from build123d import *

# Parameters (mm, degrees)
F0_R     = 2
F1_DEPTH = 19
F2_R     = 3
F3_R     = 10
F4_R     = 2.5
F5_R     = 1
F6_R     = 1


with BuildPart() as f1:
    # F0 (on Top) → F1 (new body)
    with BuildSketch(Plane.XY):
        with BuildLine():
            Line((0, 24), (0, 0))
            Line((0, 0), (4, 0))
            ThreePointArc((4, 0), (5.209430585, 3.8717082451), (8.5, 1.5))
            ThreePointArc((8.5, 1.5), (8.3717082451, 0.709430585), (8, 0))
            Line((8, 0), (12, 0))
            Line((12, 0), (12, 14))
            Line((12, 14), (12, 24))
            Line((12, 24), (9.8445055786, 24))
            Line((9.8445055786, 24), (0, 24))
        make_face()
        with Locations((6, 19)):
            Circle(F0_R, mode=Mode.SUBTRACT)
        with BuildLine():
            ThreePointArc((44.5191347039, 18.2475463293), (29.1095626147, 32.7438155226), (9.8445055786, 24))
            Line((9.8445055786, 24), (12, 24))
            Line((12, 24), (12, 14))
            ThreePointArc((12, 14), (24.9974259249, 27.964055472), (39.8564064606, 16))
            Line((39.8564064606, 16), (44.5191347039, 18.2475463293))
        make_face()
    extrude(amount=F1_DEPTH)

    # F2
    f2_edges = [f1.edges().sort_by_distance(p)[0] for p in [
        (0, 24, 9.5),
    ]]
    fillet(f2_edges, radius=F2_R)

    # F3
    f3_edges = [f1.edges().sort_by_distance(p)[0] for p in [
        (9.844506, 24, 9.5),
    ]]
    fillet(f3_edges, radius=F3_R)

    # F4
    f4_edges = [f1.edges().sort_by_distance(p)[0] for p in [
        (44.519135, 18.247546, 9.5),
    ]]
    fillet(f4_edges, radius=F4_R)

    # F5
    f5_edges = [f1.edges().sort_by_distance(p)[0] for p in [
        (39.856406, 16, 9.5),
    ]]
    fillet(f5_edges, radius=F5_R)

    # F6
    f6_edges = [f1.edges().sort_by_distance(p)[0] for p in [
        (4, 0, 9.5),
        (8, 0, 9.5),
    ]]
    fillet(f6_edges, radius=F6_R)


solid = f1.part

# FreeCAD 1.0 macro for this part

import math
import FreeCAD as App
import Part
import Sketcher

V = App.Vector
Q = App.Units.Quantity


def edges_at(feature, points):
    """Names of the edges that pass closest to the given points."""
    edges = feature.Shape.Edges
    near = lambda p: min(range(len(edges)), key=lambda i: edges[i].distToShape(Part.Vertex(*p))[0])
    return sorted({f"Edge{near(p) + 1}" for p in points})

doc = App.newDocument("Part")
params = doc.addObject("Spreadsheet::Sheet", "Params")
for row, (alias, value) in enumerate([
    ("sketch1_diameter", "4 mm"),
    ("sketch1_radius", "14 mm"),
    ("sketch1_radius2", "19 mm"),
    ("sketch1_radius3", "2.5 mm"),
    ("sketch1_width", "4 mm"),
    ("pad1_length", "19 mm"),
    ("fillet_radius", "3 mm"),
    ("fillet2_radius", "10 mm"),
    ("fillet3_radius", "2.5 mm"),
    ("fillet4_radius", "1 mm"),
    ("fillet5_radius", "1 mm"),
], start=1):
    params.set(f"A{row}", alias)
    params.set(f"B{row}", "=" + value)
    params.setAlias(f"B{row}", alias)

body = doc.addObject("PartDesign::Body", "Body")

sketch1 = body.newObject("Sketcher::SketchObject", "Sketch")
sketch1.AttachmentSupport = (doc.getObject("XY_Plane"), [""])
sketch1.MapMode = "FlatFace"
sketch1.addGeometry(Part.LineSegment(V(0, 24, 0), V(0, 0, 0)), False)
sketch1.addGeometry(Part.LineSegment(V(0, 0, 0), V(4, 0, 0)), False)
sketch1.addGeometry(Part.ArcOfCircle(Part.Circle(V(6, 1.5, 0), V(0, 0, 1), 2.5), math.radians(0), math.radians(217)), False)
sketch1.addGeometry(Part.ArcOfCircle(Part.Circle(V(6, 1.5, 0), V(0, 0, 1), 2.5), math.radians(-37), math.radians(0)), False)
sketch1.addGeometry(Part.LineSegment(V(8, 0, 0), V(12, 0, 0)), False)
sketch1.addGeometry(Part.LineSegment(V(12, 0, 0), V(12, 14, 0)), False)
sketch1.addGeometry(Part.ArcOfCircle(Part.Circle(V(26, 14, 0), V(0, 0, 1), 14), math.radians(8), math.radians(180)), False)
sketch1.addGeometry(Part.LineSegment(V(39.9, 16, 0), V(44.5, 18.2, 0)), False)
sketch1.addGeometry(Part.ArcOfCircle(Part.Circle(V(26, 14, 0), V(0, 0, 1), 19), math.radians(13), math.radians(148)), False)
sketch1.addGeometry(Part.LineSegment(V(9.8, 24, 0), V(0, 24, 0)), False)
sketch1.addGeometry(Part.Circle(V(6, 19, 0), V(0, 0, 1), 2), False)
sketch1.addConstraint(Sketcher.Constraint("Coincident", 0, 2, 1, 1))
sketch1.addConstraint(Sketcher.Constraint("Coincident", 1, 2, 2, 2))
sketch1.addConstraint(Sketcher.Constraint("Tangent", 2, 1, 3, 2))
sketch1.addConstraint(Sketcher.Constraint("Coincident", 3, 1, 4, 1))
sketch1.addConstraint(Sketcher.Constraint("Coincident", 4, 2, 5, 1))
sketch1.addConstraint(Sketcher.Constraint("Tangent", 5, 2, 6, 2))
sketch1.addConstraint(Sketcher.Constraint("Coincident", 6, 1, 7, 1))
sketch1.addConstraint(Sketcher.Constraint("Coincident", 7, 2, 8, 1))
sketch1.addConstraint(Sketcher.Constraint("Coincident", 8, 2, 9, 1))
sketch1.addConstraint(Sketcher.Constraint("Coincident", 9, 2, 0, 1))
sketch1.addConstraint(Sketcher.Constraint("Vertical", 0))
sketch1.addConstraint(Sketcher.Constraint("Horizontal", 1))
sketch1.addConstraint(Sketcher.Constraint("Horizontal", 4))
sketch1.addConstraint(Sketcher.Constraint("Vertical", 5))
sketch1.addConstraint(Sketcher.Constraint("Horizontal", 9))
sketch1.addConstraint(Sketcher.Constraint("Coincident", 0, 2, -1, 1))
sketch1.addConstraint(Sketcher.Constraint("Coincident", 8, 3, 6, 3))
sketch1.addConstraint(Sketcher.Constraint("Equal", 2, 3))
sketch1.addConstraint(Sketcher.Constraint("PointOnObject", 3, 1, -1))
sketch1.addConstraint(Sketcher.Constraint("Horizontal", 3, 3, 2, 1))
sketch1.addConstraint(Sketcher.Constraint("Vertical", 3, 3, 10, 3))
sketch1.addConstraint(Sketcher.Constraint("Equal", 1, 4))
sketch1.addConstraint(Sketcher.Constraint("Diameter", 10, Q("4 mm")))
sketch1.addConstraint(Sketcher.Constraint("Radius", 6, Q("14 mm")))
sketch1.addConstraint(Sketcher.Constraint("Radius", 8, Q("19 mm")))
sketch1.addConstraint(Sketcher.Constraint("Radius", 2, Q("2.5 mm")))
sketch1.addConstraint(Sketcher.Constraint("DistanceX", 1, 1, 1, 2, Q("4 mm")))
sketch1.addConstraint(Sketcher.Constraint("DistanceY", 0, 2, 0, 1, Q("24 mm")))
sketch1.addConstraint(Sketcher.Constraint("DistanceY", 5, 1, 5, 2, Q("14 mm")))
sketch1.addConstraint(Sketcher.Constraint("DistanceX", -1, 1, 2, 3, Q("6 mm")))
sketch1.addConstraint(Sketcher.Constraint("DistanceY", -1, 1, 10, 3, Q("19 mm")))
sketch1.addConstraint(Sketcher.Constraint("DistanceY", -1, 1, 6, 1, Q("16 mm")))
sketch1.addConstraint(Sketcher.Constraint("DistanceX", 6, 1, 7, 2, Q("4.662728 mm")))
sketch1.setExpression("Constraints[22]", "Params.sketch1_diameter")
sketch1.setExpression("Constraints[23]", "Params.sketch1_radius")
sketch1.setExpression("Constraints[24]", "Params.sketch1_radius2")
sketch1.setExpression("Constraints[25]", "Params.sketch1_radius3")
sketch1.setExpression("Constraints[26]", "Params.sketch1_width")
pad1 = body.newObject("PartDesign::Pad", "Pad")
pad1.Profile = sketch1
pad1.setExpression("Length", "Params.pad1_length")
doc.recompute()

fillet = body.newObject("PartDesign::Fillet", "Fillet")
fillet.Base = (pad1, edges_at(pad1, [(0, 24, 9.5)]))
fillet.setExpression("Radius", "Params.fillet_radius")
doc.recompute()

fillet2 = body.newObject("PartDesign::Fillet", "Fillet001")
fillet2.Base = (fillet, edges_at(fillet, [(9.845, 24, 9.5)]))
fillet2.setExpression("Radius", "Params.fillet2_radius")
doc.recompute()

fillet3 = body.newObject("PartDesign::Fillet", "Fillet002")
fillet3.Base = (fillet2, edges_at(fillet2, [(44.519, 18.248, 9.5)]))
fillet3.setExpression("Radius", "Params.fillet3_radius")
doc.recompute()

fillet4 = body.newObject("PartDesign::Fillet", "Fillet003")
fillet4.Base = (fillet3, edges_at(fillet3, [(39.856, 16, 9.5)]))
fillet4.setExpression("Radius", "Params.fillet4_radius")
doc.recompute()

fillet5 = body.newObject("PartDesign::Fillet", "Fillet004")
fillet5.Base = (fillet4, edges_at(fillet4, [(4, 0, 9.5), (8, 0, 9.5)]))
fillet5.setExpression("Radius", "Params.fillet5_radius")

doc.recompute()
